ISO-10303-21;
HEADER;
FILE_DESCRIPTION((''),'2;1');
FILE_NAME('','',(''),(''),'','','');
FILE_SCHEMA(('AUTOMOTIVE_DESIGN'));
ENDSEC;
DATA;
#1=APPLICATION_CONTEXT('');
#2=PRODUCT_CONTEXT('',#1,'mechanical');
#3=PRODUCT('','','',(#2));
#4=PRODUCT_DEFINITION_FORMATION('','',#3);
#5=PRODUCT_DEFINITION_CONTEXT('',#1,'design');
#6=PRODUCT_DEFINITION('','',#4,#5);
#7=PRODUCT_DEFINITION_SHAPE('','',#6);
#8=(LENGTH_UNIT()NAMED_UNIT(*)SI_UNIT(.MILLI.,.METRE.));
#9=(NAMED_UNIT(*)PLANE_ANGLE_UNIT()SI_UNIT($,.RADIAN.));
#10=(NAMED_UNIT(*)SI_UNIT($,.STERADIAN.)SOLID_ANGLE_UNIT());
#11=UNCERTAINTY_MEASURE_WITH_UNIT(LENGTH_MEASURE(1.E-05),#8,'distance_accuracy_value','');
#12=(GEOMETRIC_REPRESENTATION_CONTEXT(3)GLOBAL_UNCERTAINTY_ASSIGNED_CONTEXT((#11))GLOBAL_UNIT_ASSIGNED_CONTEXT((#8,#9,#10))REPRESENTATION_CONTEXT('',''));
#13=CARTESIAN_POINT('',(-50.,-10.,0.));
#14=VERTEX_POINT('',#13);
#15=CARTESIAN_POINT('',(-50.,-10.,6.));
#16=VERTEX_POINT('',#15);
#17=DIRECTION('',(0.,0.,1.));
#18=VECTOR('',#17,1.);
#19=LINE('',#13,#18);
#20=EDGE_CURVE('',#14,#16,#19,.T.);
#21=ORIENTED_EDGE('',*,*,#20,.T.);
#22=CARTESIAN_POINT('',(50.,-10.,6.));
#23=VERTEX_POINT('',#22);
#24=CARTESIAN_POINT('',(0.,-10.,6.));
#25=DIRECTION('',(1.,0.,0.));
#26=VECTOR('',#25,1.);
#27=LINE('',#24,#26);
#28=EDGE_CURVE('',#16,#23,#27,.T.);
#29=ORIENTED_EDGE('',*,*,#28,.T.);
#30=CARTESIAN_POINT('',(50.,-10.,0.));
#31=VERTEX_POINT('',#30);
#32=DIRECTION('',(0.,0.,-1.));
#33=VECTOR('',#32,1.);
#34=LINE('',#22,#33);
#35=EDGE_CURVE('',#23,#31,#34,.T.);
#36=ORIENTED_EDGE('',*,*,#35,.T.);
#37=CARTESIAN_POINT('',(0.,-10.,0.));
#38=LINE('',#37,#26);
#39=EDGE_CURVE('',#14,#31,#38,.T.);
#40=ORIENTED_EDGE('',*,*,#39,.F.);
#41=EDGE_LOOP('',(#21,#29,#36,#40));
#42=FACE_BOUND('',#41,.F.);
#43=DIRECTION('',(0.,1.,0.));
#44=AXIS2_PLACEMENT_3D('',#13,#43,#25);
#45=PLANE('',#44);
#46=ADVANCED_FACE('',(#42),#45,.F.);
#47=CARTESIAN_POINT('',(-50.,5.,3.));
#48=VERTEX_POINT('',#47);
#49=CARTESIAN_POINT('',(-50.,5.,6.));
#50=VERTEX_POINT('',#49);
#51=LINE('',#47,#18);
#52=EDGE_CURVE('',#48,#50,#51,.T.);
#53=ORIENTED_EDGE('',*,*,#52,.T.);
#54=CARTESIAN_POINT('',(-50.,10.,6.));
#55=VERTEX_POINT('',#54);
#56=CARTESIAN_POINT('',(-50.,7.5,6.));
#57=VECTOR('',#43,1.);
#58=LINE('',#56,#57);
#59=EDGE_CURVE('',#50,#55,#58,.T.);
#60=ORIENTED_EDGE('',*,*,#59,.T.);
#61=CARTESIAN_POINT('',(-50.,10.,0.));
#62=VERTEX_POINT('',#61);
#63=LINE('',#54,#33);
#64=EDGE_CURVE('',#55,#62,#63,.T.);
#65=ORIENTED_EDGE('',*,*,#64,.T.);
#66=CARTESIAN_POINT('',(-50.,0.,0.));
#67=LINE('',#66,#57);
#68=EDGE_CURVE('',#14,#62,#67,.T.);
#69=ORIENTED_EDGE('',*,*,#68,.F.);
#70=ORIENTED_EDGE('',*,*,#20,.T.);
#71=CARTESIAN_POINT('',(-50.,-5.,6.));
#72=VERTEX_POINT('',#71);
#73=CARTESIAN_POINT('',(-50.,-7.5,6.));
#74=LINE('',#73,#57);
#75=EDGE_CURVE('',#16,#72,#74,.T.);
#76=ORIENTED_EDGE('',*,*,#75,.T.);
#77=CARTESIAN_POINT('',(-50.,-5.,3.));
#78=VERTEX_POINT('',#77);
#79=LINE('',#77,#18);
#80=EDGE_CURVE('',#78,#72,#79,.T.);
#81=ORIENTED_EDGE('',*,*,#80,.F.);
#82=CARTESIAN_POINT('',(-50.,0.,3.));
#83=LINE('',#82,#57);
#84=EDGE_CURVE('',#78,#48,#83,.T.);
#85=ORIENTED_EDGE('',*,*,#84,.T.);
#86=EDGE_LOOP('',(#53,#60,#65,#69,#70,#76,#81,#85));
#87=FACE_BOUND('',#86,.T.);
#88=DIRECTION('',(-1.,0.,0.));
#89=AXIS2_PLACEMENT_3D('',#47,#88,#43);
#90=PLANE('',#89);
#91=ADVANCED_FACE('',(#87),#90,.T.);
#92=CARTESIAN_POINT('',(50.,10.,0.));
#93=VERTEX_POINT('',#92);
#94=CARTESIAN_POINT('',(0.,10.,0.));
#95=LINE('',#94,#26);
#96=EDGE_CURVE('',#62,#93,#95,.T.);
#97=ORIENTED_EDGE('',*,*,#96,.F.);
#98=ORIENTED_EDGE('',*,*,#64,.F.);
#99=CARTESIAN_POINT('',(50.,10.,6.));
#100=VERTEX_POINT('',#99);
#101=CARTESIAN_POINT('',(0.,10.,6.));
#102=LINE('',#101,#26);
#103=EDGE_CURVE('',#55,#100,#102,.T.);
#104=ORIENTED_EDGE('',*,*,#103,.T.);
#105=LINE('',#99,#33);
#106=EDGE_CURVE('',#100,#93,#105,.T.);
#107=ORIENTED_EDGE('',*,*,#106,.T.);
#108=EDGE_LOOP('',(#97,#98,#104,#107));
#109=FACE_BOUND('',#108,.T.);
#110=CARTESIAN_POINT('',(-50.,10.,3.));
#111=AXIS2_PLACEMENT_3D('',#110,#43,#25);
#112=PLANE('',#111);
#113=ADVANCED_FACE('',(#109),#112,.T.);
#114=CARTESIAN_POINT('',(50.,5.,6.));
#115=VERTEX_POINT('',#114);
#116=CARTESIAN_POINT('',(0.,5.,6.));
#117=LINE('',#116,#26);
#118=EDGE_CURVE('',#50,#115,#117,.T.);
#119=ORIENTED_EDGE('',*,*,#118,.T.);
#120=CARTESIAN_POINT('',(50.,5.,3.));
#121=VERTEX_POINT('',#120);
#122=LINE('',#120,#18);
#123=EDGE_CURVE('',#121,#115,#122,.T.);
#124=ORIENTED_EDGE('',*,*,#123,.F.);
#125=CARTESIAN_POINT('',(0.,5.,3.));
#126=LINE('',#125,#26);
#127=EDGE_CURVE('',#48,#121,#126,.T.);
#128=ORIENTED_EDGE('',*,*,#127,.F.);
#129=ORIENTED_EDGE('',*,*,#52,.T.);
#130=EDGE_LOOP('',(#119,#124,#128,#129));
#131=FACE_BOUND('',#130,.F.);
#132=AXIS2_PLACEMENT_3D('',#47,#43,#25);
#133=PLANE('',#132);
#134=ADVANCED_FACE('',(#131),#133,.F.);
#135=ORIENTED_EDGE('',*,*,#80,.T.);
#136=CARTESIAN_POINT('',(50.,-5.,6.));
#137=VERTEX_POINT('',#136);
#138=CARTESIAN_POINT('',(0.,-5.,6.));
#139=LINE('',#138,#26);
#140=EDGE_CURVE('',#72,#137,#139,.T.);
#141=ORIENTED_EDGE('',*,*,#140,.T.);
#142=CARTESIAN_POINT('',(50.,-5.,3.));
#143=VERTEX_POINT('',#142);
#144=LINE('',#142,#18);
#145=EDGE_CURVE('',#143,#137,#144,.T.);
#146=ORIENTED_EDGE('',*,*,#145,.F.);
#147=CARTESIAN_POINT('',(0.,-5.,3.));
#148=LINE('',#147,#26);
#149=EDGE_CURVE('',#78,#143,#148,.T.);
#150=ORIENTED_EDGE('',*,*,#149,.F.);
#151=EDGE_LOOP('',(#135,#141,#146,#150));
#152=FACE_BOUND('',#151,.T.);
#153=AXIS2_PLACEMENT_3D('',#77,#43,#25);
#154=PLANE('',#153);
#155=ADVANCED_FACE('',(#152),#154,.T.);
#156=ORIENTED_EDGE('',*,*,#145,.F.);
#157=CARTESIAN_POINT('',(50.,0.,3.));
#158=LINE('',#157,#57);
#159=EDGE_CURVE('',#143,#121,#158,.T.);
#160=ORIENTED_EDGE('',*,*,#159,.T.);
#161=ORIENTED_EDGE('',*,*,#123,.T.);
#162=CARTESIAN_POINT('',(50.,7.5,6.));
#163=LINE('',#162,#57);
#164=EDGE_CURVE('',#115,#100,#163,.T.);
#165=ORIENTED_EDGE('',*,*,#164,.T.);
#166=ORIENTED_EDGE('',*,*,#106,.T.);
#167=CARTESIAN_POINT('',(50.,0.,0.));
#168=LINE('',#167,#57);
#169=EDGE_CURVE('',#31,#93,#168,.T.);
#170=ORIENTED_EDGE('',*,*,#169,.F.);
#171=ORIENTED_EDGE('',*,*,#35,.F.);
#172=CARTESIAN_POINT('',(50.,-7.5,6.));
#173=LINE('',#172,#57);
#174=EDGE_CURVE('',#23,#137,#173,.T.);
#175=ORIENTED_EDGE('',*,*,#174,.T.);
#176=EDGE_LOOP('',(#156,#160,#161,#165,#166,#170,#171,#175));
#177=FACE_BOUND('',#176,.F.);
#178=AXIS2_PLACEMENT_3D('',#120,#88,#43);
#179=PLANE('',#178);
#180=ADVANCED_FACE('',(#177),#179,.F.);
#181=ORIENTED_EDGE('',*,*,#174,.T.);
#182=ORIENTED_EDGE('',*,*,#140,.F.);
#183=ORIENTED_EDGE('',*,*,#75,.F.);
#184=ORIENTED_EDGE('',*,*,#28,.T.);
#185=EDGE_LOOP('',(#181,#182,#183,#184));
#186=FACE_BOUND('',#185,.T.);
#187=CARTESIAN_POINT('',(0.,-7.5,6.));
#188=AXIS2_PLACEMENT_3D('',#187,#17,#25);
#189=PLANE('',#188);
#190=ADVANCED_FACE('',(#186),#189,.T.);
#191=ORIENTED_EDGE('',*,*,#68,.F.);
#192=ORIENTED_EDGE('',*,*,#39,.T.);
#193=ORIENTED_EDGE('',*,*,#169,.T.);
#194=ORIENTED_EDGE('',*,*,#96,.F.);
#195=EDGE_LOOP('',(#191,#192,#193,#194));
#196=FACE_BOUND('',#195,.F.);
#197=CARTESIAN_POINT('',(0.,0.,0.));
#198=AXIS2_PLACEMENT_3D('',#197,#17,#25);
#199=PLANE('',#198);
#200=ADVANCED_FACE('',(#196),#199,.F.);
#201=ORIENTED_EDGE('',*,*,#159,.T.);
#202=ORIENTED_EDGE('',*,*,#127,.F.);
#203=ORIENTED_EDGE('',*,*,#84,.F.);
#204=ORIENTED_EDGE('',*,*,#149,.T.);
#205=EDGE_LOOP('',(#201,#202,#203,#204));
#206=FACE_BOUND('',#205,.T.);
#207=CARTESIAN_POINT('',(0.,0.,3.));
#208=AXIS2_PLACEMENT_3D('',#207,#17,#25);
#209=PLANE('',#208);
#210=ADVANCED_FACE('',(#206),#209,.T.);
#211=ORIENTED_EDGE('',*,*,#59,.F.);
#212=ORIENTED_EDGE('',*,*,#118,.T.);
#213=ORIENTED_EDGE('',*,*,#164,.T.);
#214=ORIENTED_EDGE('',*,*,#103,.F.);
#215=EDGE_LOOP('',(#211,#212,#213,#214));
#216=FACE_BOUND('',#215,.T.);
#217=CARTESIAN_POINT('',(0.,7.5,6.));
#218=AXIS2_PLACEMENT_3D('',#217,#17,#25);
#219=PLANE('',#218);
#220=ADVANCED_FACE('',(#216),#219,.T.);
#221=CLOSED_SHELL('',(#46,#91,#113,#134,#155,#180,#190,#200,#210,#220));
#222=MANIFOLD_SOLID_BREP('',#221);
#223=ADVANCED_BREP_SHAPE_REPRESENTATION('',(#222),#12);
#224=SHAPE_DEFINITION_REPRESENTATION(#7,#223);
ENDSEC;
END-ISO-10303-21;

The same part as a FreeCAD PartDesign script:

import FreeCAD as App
import Part
import Sketcher
from FreeCAD import Vector
Q = App.Units.Quantity


def add_polygon(sketch, points):
    """Adds a closed chain of lines whose ends are joined by coincident constraints."""
    first, n = sketch.GeometryCount, len(points)
    for a, b in zip(points, points[1:] + points[:1]):
        sketch.addGeometry(Part.LineSegment(App.Vector(*a, 0), App.Vector(*b, 0)), False)
    for i in range(n):
        sketch.addConstraint(Sketcher.Constraint("Coincident", first + i, 2, first + (i + 1) % n, 1))

doc = App.newDocument("Part")
body = doc.addObject("PartDesign::Body", "Body")

# Sketch on XY plane
sketch1 = doc.addObject("Sketcher::SketchObject", "Sketch")
body.addObject(sketch1)
sketch1.AttachmentSupport = (doc.XY_Plane, [""])
sketch1.MapMode = "FlatFace"
add_polygon(sketch1, [(-50, 10), (-50, -10), (50, -10), (50, 10)])  # lines 0-3
sketch1.addConstraint(Sketcher.Constraint("Vertical", 0))
sketch1.addConstraint(Sketcher.Constraint("Horizontal", 1))
sketch1.addConstraint(Sketcher.Constraint("Vertical", 2))
sketch1.addConstraint(Sketcher.Constraint("Horizontal", 3))
sketch1.addConstraint(Sketcher.Constraint("Symmetric", 0, 2, 2, 2, -1, 1))
sketch1.addConstraint(Sketcher.Constraint("DistanceX", 1, 1, 1, 2, Q("100 mm")))
sketch1.addConstraint(Sketcher.Constraint("DistanceY", 0, 2, 0, 1, Q("20 mm")))
pad1 = doc.addObject("PartDesign::Pad", "Pad")
body.addObject(pad1)
pad1.Profile = sketch1
pad1.Length = 3

# Sketch on XY plane
sketch2 = doc.addObject("Sketcher::SketchObject", "Sketch001")
body.addObject(sketch2)
sketch2.AttachmentSupport = (doc.XY_Plane, [""])
sketch2.MapMode = "FlatFace"
sketch2.AttachmentOffset = App.Placement(Vector(0, 0, 3), App.Rotation())
add_polygon(sketch2, [(-50, 10), (-50, 5), (50, 5), (50, 10)])  # lines 0-3
add_polygon(sketch2, [(-50, -5), (-50, -10), (50, -10), (50, -5)])  # lines 4-7
sketch2.addConstraint(Sketcher.Constraint("Vertical", 0))
sketch2.addConstraint(Sketcher.Constraint("Horizontal", 1))
sketch2.addConstraint(Sketcher.Constraint("Vertical", 2))
sketch2.addConstraint(Sketcher.Constraint("Horizontal", 3))
sketch2.addConstraint(Sketcher.Constraint("Vertical", 4))
sketch2.addConstraint(Sketcher.Constraint("Horizontal", 5))
sketch2.addConstraint(Sketcher.Constraint("Vertical", 6))
sketch2.addConstraint(Sketcher.Constraint("Horizontal", 7))
sketch2.addConstraint(Sketcher.Constraint("Symmetric", 2, 2, 4, 2, -1, 1))
sketch2.addConstraint(Sketcher.Constraint("Symmetric", 0, 2, 6, 2, -1, 1))
sketch2.addConstraint(Sketcher.Constraint("Vertical", 3, 2, 4, 2))
sketch2.addConstraint(Sketcher.Constraint("DistanceX", 1, 1, 1, 2, Q("100 mm")))
sketch2.addConstraint(Sketcher.Constraint("DistanceY", 0, 2, 0, 1, Q("5 mm")))
sketch2.addConstraint(Sketcher.Constraint("DistanceY", -1, 1, 0, 2, Q("5 mm")))
pad2 = doc.addObject("PartDesign::Pad", "Pad001")
body.addObject(pad2)
pad2.Profile = sketch2
pad2.Length = 3

doc.recompute()
